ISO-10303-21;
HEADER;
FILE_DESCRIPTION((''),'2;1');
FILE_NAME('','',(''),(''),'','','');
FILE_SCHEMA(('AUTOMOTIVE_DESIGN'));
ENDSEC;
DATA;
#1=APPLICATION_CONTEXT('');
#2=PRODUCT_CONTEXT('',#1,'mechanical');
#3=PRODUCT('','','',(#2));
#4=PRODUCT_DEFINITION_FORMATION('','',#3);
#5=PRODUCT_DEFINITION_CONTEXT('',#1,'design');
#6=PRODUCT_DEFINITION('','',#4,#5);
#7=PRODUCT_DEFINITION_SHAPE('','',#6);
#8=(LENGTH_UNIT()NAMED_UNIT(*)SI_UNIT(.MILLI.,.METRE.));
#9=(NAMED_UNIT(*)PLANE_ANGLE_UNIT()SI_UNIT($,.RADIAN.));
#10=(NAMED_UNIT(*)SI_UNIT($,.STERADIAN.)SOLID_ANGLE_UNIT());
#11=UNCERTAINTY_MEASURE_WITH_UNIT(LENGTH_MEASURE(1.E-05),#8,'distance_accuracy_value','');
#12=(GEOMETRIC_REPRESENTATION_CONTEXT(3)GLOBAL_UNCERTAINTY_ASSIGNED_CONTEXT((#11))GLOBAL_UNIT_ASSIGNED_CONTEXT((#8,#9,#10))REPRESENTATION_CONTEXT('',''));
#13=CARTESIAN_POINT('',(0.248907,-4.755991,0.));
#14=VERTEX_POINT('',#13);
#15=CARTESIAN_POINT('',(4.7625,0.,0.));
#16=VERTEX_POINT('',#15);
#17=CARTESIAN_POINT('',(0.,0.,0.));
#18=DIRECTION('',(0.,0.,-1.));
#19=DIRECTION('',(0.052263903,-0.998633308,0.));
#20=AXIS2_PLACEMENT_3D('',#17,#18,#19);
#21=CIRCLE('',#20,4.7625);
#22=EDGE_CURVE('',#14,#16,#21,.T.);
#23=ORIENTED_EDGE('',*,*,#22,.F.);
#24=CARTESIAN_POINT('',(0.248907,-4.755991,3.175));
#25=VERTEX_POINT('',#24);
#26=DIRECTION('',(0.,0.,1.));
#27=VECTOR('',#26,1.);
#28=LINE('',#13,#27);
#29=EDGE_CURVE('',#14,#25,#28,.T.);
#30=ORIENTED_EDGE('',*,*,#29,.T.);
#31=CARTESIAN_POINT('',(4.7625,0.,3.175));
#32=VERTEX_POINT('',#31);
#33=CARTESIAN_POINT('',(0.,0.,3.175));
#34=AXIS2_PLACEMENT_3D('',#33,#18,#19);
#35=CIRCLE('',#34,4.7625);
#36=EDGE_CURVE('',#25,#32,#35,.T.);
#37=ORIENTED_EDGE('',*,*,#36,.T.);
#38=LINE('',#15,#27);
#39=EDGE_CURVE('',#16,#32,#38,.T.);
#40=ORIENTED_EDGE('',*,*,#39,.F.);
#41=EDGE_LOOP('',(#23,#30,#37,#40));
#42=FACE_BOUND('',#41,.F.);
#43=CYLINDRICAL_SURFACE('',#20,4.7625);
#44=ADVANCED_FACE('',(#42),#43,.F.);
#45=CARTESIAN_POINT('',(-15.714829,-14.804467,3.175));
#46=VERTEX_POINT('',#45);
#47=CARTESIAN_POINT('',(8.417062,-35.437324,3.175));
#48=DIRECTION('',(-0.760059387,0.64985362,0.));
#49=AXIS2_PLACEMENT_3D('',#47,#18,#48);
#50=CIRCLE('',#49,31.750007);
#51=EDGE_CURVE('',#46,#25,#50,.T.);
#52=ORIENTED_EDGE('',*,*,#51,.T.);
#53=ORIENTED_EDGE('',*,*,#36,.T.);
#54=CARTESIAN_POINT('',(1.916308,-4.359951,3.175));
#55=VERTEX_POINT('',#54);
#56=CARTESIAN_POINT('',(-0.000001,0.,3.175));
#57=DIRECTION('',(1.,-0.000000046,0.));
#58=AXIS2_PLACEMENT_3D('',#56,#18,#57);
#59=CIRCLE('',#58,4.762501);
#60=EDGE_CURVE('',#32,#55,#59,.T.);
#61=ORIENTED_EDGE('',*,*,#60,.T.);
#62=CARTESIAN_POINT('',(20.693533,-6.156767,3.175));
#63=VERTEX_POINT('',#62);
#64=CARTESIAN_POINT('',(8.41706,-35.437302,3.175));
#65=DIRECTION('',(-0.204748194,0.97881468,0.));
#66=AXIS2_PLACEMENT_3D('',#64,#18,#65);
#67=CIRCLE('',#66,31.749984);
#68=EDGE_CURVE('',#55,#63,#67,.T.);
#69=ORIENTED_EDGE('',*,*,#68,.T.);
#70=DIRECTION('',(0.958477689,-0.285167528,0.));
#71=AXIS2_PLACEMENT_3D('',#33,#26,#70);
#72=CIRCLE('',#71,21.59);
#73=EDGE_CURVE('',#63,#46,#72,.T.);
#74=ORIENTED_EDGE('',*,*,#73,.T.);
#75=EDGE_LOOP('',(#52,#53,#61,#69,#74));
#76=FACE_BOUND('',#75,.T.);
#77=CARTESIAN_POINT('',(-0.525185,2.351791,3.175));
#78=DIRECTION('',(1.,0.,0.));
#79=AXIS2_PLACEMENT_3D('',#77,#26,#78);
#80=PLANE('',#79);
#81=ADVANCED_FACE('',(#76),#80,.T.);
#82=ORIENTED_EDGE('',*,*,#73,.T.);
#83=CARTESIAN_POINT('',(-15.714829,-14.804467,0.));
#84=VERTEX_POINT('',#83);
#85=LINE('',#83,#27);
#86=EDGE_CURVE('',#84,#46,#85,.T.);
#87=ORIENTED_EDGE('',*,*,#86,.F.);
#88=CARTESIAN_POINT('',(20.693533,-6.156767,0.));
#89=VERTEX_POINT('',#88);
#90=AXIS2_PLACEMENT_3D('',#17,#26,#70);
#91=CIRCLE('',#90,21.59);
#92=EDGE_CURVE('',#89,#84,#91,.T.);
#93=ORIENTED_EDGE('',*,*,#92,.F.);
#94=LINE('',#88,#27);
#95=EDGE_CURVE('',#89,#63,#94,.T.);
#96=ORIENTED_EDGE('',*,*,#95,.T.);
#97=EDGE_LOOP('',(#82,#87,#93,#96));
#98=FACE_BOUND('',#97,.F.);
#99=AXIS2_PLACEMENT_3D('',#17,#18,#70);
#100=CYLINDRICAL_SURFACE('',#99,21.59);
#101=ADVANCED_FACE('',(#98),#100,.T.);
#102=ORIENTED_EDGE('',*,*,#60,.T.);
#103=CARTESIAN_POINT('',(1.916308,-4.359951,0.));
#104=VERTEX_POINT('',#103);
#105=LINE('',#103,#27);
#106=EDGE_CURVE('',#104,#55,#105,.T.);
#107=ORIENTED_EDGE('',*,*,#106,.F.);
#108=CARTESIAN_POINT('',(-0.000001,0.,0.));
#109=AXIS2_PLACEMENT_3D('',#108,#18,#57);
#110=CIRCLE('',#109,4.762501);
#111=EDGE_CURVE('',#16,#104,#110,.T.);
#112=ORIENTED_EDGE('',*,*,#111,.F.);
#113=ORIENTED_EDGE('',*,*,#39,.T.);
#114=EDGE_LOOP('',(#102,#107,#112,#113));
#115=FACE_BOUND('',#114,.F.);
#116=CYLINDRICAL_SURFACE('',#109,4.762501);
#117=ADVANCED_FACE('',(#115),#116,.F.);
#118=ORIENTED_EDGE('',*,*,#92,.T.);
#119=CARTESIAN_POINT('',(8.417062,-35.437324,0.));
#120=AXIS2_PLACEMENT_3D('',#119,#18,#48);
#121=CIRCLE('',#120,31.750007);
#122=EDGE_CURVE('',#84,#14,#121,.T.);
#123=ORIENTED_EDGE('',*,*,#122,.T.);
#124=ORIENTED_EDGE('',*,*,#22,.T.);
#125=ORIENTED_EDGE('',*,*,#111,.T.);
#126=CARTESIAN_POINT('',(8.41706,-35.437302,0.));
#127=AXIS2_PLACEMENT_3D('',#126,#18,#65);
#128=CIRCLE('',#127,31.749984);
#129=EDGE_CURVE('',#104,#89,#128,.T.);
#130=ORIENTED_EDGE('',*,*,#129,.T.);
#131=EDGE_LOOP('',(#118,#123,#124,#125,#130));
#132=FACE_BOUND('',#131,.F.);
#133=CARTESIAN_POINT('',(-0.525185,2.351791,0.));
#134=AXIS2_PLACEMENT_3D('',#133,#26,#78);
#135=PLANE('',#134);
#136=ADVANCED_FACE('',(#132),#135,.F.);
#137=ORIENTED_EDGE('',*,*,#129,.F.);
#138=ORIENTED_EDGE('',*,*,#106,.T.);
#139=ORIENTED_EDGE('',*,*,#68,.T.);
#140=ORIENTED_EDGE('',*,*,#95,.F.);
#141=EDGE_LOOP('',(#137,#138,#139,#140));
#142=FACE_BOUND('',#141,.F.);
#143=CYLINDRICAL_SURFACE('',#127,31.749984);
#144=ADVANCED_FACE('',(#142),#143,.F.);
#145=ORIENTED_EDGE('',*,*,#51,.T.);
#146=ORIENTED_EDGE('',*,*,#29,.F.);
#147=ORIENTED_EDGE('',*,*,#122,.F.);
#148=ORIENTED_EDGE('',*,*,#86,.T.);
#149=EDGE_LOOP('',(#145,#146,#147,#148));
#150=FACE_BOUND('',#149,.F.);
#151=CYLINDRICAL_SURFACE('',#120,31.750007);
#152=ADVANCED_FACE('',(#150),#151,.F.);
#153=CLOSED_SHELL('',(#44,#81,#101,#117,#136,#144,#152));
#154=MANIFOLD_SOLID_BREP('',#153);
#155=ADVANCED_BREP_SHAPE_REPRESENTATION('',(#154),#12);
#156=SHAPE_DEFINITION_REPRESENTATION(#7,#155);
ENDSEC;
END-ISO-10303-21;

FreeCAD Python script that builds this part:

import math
import FreeCAD as App
import Part
import Sketcher
Q = App.Units.Quantity

doc = App.newDocument("Part")
params = doc.addObject("Spreadsheet::Sheet", "Params")
for row, (alias, value) in enumerate([
    ("sketch1_radius", "0.85 in"),
    ("sketch1_radius2", "0.1875 in"),
    ("pad1_length", "0.125 in"),
], start=1):
    params.set(f"A{row}", alias)
    params.set(f"B{row}", "=" + value)
    params.setAlias(f"B{row}", alias)

body = doc.addObject("PartDesign::Body", "Body")

sketch1 = body.newObject("Sketcher::SketchObject", "Sketch")
sketch1.AttachmentSupport = (doc.getObject("XY_Plane"), [""])
sketch1.MapMode = "FlatFace"
sketch1.addGeometry(Part.ArcOfCircle(Part.Circle(App.Vector(8.41706, -35.437302, 0), App.Vector(0, 0, 1), 31.749984), math.radians(67.253119), math.radians(101.814759)), False)
sketch1.addGeometry(Part.ArcOfCircle(Part.Circle(App.Vector(0, 0, 0), App.Vector(0, 0, 1), 21.59), math.radians(-16.568863), math.radians(223.291427)), False)
sketch1.addGeometry(Part.ArcOfCircle(Part.Circle(App.Vector(8.417062, -35.437324, 0), App.Vector(0, 0, 1), 31.750007), math.radians(104.907819), math.radians(139.469434)), False)
sketch1.addGeometry(Part.ArcOfCircle(Part.Circle(App.Vector(0, 0, 0), App.Vector(0, 0, 1), 4.7625), math.radians(0), math.radians(272.995866)), False)
sketch1.addGeometry(Part.ArcOfCircle(Part.Circle(App.Vector(-0.000001, 0, 0), App.Vector(0, 0, 1), 4.762501), math.radians(-66.273297), math.radians(-0.000003)), False)
sketch1.addConstraint(Sketcher.Constraint("Coincident", 0, 1, 1, 1))
sketch1.addConstraint(Sketcher.Constraint("Coincident", 1, 2, 2, 2))
sketch1.addConstraint(Sketcher.Constraint("Coincident", 2, 1, 3, 2))
sketch1.addConstraint(Sketcher.Constraint("Tangent", 3, 1, 4, 2))
sketch1.addConstraint(Sketcher.Constraint("Coincident", 4, 1, 0, 2))
sketch1.addConstraint(Sketcher.Constraint("Coincident", 1, 3, -1, 1))
sketch1.addConstraint(Sketcher.Constraint("Coincident", 3, 3, -1, 1))
sketch1.addConstraint(Sketcher.Constraint("Equal", 3, 4))
sketch1.addConstraint(Sketcher.Constraint("PointOnObject", 3, 1, -1))
sketch1.addConstraint(Sketcher.Constraint("Radius", 1, Q("0.85 in")))
sketch1.addConstraint(Sketcher.Constraint("Radius", 3, Q("0.1875 in")))
sketch1.addConstraint(Sketcher.Constraint("Radius", 0, 31.749984))
sketch1.addConstraint(Sketcher.Constraint("Radius", 2, 31.750007))
sketch1.addConstraint(Sketcher.Constraint("DistanceY", 0, 3, -1, 1, 35.437302))
sketch1.addConstraint(Sketcher.Constraint("DistanceX", 2, 1, 4, 1, 1.667401))
sketch1.addConstraint(Sketcher.Constraint("DistanceX", -1, 1, 0, 3, 8.41706))
sketch1.addConstraint(Sketcher.Constraint("DistanceX", 1, 2, -1, 1, 15.714829))
sketch1.setExpression("Constraints[9]", "Params.sketch1_radius")
sketch1.setExpression("Constraints[10]", "Params.sketch1_radius2")
pad1 = body.newObject("PartDesign::Pad", "Pad")
pad1.Profile = sketch1
pad1.setExpression("Length", "Params.pad1_length")

doc.recompute()
